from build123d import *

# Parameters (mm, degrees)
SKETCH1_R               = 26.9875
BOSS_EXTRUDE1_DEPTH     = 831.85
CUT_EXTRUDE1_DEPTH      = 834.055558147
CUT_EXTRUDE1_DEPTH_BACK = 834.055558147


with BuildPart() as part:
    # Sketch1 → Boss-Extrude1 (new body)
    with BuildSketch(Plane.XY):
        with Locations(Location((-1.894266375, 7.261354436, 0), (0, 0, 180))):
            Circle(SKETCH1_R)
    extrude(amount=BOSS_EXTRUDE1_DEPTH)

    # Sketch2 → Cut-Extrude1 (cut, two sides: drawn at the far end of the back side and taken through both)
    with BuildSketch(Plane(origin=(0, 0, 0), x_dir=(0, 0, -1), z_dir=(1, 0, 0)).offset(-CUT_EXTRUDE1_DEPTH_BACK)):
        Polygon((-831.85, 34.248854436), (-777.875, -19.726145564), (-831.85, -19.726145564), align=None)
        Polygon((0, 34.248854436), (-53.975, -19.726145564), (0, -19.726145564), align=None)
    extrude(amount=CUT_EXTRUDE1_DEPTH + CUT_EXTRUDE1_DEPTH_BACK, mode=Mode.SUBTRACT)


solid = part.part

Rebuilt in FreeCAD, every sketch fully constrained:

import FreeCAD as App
import Part
import Sketcher

V = App.Vector
Q = App.Units.Quantity


def add_polygon(sketch, points):
    """Adds a closed chain of lines whose ends are joined by coincident constraints."""
    first, n = sketch.GeometryCount, len(points)
    for a, b in zip(points, points[1:] + points[:1]):
        sketch.addGeometry(Part.LineSegment(App.Vector(*a, 0), App.Vector(*b, 0)), False)
    for i in range(n):
        sketch.addConstraint(Sketcher.Constraint("Coincident", first + i, 2, first + (i + 1) % n, 1))

doc = App.newDocument("Part")
body = doc.addObject("PartDesign::Body", "Body")

sketch1 = body.newObject("Sketcher::SketchObject", "Sketch")
sketch1.AttachmentSupport = (doc.getObject("XY_Plane"), [""])
sketch1.MapMode = "FlatFace"
sketch1.addGeometry(Part.Circle(V(-2, 7, 0), V(0, 0, 1), 27), False)
sketch1.addConstraint([
    Sketcher.Constraint("Diameter", 0, Q("2.125 in")),
    Sketcher.Constraint("DistanceX", 0, 3, -1, 1, 1.894266),
    Sketcher.Constraint("DistanceY", -1, 1, 0, 3, 7.261354),
])
pad1 = body.newObject("PartDesign::Pad", "Pad")
pad1.Profile = sketch1
pad1.Length = Q("32.75 in")

sketch2 = body.newObject("Sketcher::SketchObject", "Sketch001")
sketch2.AttachmentSupport = (doc.getObject("YZ_Plane"), [""])
sketch2.MapMode = "FlatFace"
add_polygon(sketch2, [(-20, 778), (34, 832), (-20, 832)])
add_polygon(sketch2, [(34, 0), (-20, 54), (-20, 0)])
sketch2.addConstraint([
    Sketcher.Constraint("Horizontal", 1),
    Sketcher.Constraint("Vertical", 2),
    Sketcher.Constraint("Vertical", 4),
    Sketcher.Constraint("Horizontal", 5),
    Sketcher.Constraint("PointOnObject", 4, 2, -1),
    Sketcher.Constraint("Perpendicular", 0, 3),
    Sketcher.Constraint("Vertical", 2, 2, 3, 2),
    Sketcher.Constraint("Vertical", 0, 2, 5, 2),
    Sketcher.Constraint("Equal", 5, 2),
    Sketcher.Constraint("DistanceY", 3, 2, 2, 2, Q("28.5 in")),
    Sketcher.Constraint("DistanceX", 1, 2, 1, 1, Q("2.125 in")),
    Sketcher.Constraint("DistanceX", -1, 1, 0, 2, 34.248854),
])
pocket1 = body.newObject("PartDesign::Pocket", "Pocket")
pocket1.Profile = sketch2
pocket1.Type = "ThroughAll"
pocket1.Midplane = True

doc.recompute()
